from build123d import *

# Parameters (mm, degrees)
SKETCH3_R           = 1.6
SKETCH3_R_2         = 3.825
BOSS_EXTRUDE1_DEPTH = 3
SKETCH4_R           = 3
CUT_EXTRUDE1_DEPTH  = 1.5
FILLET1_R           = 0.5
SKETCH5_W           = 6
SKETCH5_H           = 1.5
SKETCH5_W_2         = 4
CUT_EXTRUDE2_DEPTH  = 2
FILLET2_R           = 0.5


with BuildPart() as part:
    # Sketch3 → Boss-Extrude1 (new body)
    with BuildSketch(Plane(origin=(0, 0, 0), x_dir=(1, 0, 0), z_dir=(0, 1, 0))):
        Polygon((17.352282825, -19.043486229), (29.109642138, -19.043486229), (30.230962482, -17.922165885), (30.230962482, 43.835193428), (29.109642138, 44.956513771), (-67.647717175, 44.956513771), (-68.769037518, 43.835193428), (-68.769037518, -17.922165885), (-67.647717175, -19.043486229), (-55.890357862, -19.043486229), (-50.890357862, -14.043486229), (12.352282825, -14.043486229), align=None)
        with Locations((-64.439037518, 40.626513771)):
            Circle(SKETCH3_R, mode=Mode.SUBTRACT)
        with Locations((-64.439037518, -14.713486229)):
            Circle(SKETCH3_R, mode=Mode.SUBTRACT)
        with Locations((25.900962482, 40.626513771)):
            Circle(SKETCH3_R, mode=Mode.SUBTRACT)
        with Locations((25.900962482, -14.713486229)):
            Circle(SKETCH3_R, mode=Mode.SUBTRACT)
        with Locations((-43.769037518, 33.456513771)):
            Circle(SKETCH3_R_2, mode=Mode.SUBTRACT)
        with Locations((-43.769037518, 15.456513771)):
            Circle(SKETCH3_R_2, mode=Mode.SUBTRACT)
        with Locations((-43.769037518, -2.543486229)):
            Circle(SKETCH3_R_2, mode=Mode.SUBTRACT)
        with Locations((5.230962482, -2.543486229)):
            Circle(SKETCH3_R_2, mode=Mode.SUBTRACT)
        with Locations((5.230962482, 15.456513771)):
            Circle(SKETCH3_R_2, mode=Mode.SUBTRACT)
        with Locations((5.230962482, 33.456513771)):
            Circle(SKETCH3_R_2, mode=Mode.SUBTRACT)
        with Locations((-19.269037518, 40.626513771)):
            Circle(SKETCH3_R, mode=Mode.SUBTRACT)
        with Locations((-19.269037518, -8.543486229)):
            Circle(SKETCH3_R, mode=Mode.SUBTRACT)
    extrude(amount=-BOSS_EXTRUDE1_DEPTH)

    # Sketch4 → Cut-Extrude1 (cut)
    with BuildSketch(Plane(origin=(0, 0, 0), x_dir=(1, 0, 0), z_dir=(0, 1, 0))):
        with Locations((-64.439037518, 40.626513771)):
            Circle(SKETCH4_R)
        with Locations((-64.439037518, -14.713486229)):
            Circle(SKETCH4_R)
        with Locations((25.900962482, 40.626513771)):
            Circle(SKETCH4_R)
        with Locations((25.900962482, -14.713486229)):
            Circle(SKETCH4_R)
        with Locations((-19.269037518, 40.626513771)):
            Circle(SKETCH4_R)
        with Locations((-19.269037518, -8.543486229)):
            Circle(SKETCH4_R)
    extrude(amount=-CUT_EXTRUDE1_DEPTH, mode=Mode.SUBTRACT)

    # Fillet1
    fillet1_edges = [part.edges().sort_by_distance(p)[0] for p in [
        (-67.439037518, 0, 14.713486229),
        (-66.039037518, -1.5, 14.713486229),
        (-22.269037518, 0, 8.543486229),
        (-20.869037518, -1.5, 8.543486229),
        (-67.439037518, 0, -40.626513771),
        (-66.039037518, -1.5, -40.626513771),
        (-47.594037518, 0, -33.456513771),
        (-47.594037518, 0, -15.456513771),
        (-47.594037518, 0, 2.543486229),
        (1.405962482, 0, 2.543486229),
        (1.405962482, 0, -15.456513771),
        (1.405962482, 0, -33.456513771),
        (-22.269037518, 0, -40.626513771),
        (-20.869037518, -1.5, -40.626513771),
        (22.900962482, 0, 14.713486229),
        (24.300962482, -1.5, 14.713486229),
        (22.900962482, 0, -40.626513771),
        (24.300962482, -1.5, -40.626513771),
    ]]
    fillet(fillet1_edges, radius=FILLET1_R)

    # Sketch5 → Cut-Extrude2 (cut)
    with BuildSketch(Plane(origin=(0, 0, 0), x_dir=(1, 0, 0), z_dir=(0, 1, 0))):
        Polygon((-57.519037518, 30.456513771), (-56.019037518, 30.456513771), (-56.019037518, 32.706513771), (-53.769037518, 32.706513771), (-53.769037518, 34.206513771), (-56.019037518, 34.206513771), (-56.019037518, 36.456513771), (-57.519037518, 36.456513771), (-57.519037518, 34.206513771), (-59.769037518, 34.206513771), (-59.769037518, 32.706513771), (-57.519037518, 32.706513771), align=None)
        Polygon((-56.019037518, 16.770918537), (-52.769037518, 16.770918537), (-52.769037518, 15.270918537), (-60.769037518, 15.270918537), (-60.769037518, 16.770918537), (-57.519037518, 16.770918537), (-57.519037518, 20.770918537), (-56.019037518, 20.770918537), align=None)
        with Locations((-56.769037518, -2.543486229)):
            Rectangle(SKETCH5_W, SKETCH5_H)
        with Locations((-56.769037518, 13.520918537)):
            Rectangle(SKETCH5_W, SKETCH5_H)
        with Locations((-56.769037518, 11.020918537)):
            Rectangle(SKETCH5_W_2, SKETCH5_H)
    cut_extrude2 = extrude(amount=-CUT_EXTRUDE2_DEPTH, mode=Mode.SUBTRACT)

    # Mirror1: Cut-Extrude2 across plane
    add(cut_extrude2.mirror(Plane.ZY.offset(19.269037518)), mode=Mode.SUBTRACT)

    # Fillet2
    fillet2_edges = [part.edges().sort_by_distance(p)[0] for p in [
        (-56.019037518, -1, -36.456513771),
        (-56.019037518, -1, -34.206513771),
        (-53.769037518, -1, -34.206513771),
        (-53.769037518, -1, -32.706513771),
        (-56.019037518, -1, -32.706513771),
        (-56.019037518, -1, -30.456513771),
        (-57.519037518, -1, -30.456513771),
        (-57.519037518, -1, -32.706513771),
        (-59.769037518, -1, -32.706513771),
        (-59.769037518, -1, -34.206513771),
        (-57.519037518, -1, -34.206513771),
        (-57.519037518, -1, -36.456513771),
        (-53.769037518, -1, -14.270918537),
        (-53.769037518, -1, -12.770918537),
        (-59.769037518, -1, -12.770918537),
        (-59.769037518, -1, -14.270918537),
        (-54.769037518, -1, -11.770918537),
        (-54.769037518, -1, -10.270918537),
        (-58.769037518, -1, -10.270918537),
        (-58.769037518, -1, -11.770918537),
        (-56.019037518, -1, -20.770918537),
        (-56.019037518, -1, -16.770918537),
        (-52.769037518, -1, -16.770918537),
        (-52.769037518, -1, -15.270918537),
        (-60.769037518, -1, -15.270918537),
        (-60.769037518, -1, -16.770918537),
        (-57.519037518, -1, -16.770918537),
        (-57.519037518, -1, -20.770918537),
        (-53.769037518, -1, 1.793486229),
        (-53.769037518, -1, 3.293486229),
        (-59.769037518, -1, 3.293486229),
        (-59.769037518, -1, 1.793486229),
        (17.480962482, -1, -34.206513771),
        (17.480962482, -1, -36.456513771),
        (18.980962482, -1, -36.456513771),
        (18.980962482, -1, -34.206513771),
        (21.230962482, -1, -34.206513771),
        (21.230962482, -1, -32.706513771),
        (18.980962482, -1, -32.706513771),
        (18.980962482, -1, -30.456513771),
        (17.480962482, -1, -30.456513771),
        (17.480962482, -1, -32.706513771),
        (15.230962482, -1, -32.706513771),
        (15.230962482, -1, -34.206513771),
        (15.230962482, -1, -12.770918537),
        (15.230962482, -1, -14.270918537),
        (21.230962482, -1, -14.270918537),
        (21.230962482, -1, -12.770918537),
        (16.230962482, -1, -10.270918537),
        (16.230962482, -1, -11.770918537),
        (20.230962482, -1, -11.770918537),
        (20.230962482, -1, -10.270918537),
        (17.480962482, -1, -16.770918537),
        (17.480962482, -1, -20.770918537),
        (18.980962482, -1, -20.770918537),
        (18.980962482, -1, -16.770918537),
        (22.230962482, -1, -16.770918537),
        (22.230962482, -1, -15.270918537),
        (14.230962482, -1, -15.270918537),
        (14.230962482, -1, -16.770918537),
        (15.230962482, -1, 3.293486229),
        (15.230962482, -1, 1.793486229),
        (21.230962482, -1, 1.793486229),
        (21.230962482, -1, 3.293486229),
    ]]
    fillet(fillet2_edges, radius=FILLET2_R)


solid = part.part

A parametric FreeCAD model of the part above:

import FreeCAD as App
import Part
import Sketcher
Q = App.Units.Quantity


def edges_at(feature, points):
    """Names of the edges that pass closest to the given points."""
    edges = feature.Shape.Edges
    near = lambda p: min(range(len(edges)), key=lambda i: edges[i].distToShape(Part.Vertex(*p))[0])
    return sorted({f"Edge{near(p) + 1}" for p in points})


def add_polygon(sketch, points):
    """Adds a closed chain of lines whose ends are joined by coincident constraints."""
    first, n = sketch.GeometryCount, len(points)
    for a, b in zip(points, points[1:] + points[:1]):
        sketch.addGeometry(Part.LineSegment(App.Vector(*a, 0), App.Vector(*b, 0)), False)
    for i in range(n):
        sketch.addConstraint(Sketcher.Constraint("Coincident", first + i, 2, first + (i + 1) % n, 1))

doc = App.newDocument("Part")
body = doc.addObject("PartDesign::Body", "Body")

# Sketch on XZ plane
sketch1 = body.newObject("Sketcher::SketchObject", "Sketch")
sketch1.AttachmentSupport = (doc.getObject("XZ_Plane"), [""])
sketch1.MapMode = "FlatFace"
add_polygon(sketch1, [(17.4, 19), (29.1, 19), (30.2, 17.9), (30.2, -43.8), (29.1, -45), (-67.6, -45), (-68.8, -43.8), (-68.8, 17.9), (-67.6, 19), (-55.9, 19), (-50.9, 14), (12.4, 14)])  # lines 0-11
sketch1.addGeometry(Part.Circle(App.Vector(-64.4, 14.7, 0), App.Vector(0, 0, 1), 1.6), False)  # 12
sketch1.addGeometry(Part.Circle(App.Vector(-43.8, 2.5, 0), App.Vector(0, 0, 1), 3.8), False)  # 13
sketch1.addGeometry(Part.Circle(App.Vector(-19.3, 8.5, 0), App.Vector(0, 0, 1), 1.6), False)  # 14
sketch1.addGeometry(Part.Circle(App.Vector(25.9, 14.7, 0), App.Vector(0, 0, 1), 1.6), False)  # 15
sketch1.addGeometry(Part.Circle(App.Vector(5.2, 2.5, 0), App.Vector(0, 0, 1), 3.8), False)  # 16
sketch1.addGeometry(Part.Circle(App.Vector(-43.8, -15.5, 0), App.Vector(0, 0, 1), 3.8), False)  # 17
sketch1.addGeometry(Part.Circle(App.Vector(-43.8, -33.5, 0), App.Vector(0, 0, 1), 3.8), False)  # 18
sketch1.addGeometry(Part.Circle(App.Vector(-64.4, -40.6, 0), App.Vector(0, 0, 1), 1.6), False)  # 19
sketch1.addGeometry(Part.Circle(App.Vector(5.2, -15.5, 0), App.Vector(0, 0, 1), 3.8), False)  # 20
sketch1.addGeometry(Part.Circle(App.Vector(-19.3, -40.6, 0), App.Vector(0, 0, 1), 1.6), False)  # 21
sketch1.addGeometry(Part.Circle(App.Vector(5.2, -33.5, 0), App.Vector(0, 0, 1), 3.8), False)  # 22
sketch1.addGeometry(Part.Circle(App.Vector(25.9, -40.6, 0), App.Vector(0, 0, 1), 1.6), False)  # 23
sketch1.addConstraint(Sketcher.Constraint("Horizontal", 0))
sketch1.addConstraint(Sketcher.Constraint("Vertical", 2))
sketch1.addConstraint(Sketcher.Constraint("Horizontal", 4))
sketch1.addConstraint(Sketcher.Constraint("Vertical", 6))
sketch1.addConstraint(Sketcher.Constraint("Horizontal", 8))
sketch1.addConstraint(Sketcher.Constraint("Horizontal", 10))
sketch1.addConstraint(Sketcher.Constraint("Equal", 12, 14))
sketch1.addConstraint(Sketcher.Constraint("Equal", 14, 15))
sketch1.addConstraint(Sketcher.Constraint("Equal", 13, 16))
sketch1.addConstraint(Sketcher.Constraint("Equal", 16, 17))
sketch1.addConstraint(Sketcher.Constraint("Equal", 17, 18))
sketch1.addConstraint(Sketcher.Constraint("Equal", 15, 19))
sketch1.addConstraint(Sketcher.Constraint("Equal", 18, 20))
sketch1.addConstraint(Sketcher.Constraint("Equal", 19, 21))
sketch1.addConstraint(Sketcher.Constraint("Equal", 20, 22))
sketch1.addConstraint(Sketcher.Constraint("Equal", 21, 23))
sketch1.addConstraint(Sketcher.Constraint("Perpendicular", 1, 3))
sketch1.addConstraint(Sketcher.Constraint("Perpendicular", 3, 5))
sketch1.addConstraint(Sketcher.Constraint("Perpendicular", 5, 7))
sketch1.addConstraint(Sketcher.Constraint("Perpendicular", 7, 9))
sketch1.addConstraint(Sketcher.Constraint("Perpendicular", 9, 11))
sketch1.addConstraint(Sketcher.Constraint("Horizontal", 12, 3, 15, 3))
sketch1.addConstraint(Sketcher.Constraint("Horizontal", 13, 3, 16, 3))
sketch1.addConstraint(Sketcher.Constraint("Horizontal", 17, 3, 20, 3))
sketch1.addConstraint(Sketcher.Constraint("Horizontal", 19, 3, 21, 3))
sketch1.addConstraint(Sketcher.Constraint("Horizontal", 18, 3, 22, 3))
sketch1.addConstraint(Sketcher.Constraint("Horizontal", 21, 3, 23, 3))
sketch1.addConstraint(Sketcher.Constraint("Horizontal", 2, 2, 5, 2))
sketch1.addConstraint(Sketcher.Constraint("Horizontal", 1, 2, 6, 2))
sketch1.addConstraint(Sketcher.Constraint("Horizontal", 0, 2, 7, 2))
sketch1.addConstraint(Sketcher.Constraint("Vertical", 13, 3, 17, 3))
sketch1.addConstraint(Sketcher.Constraint("Vertical", 17, 3, 18, 3))
sketch1.addConstraint(Sketcher.Constraint("Vertical", 12, 3, 19, 3))
sketch1.addConstraint(Sketcher.Constraint("Vertical", 16, 3, 20, 3))
sketch1.addConstraint(Sketcher.Constraint("Vertical", 14, 3, 21, 3))
sketch1.addConstraint(Sketcher.Constraint("Vertical", 20, 3, 22, 3))
sketch1.addConstraint(Sketcher.Constraint("Vertical", 15, 3, 23, 3))
sketch1.addConstraint(Sketcher.Constraint("Vertical", 0, 2, 3, 2))
sketch1.addConstraint(Sketcher.Constraint("Vertical", 4, 2, 7, 2))
sketch1.addConstraint(Sketcher.Constraint("Equal", 0, 8))
sketch1.addConstraint(Sketcher.Constraint("Diameter", 12, Q("3.2 mm")))
sketch1.addConstraint(Sketcher.Constraint("Diameter", 13, Q("7.65 mm")))
sketch1.addConstraint(Sketcher.Constraint("DistanceY", 13, 3, 14, 3, Q("6 mm")))
sketch1.addConstraint(Sketcher.Constraint("DistanceX", 13, 3, 16, 3, Q("49 mm")))
sketch1.addConstraint(Sketcher.Constraint("DistanceY", 17, 3, 13, 3, Q("18 mm")))
sketch1.addConstraint(Sketcher.Constraint("DistanceY", 18, 3, 17, 3, Q("18 mm")))
sketch1.addConstraint(Sketcher.Constraint("DistanceX", 16, 3, 1, 2, Q("25 mm")))
sketch1.addConstraint(Sketcher.Constraint("DistanceX", 5, 2, 18, 3, Q("25 mm")))
sketch1.addConstraint(Sketcher.Constraint("DistanceX", 8, 2, 9, 2, Q("5 mm")))
sketch1.addConstraint(Sketcher.Constraint("DistanceX", 13, 3, 14, 3, Q("24.5 mm")))
sketch1.addConstraint(Sketcher.Constraint("DistanceY", 16, 3, 0, 2, Q("16.5 mm")))
sketch1.addConstraint(Sketcher.Constraint("DistanceY", 3, 2, 22, 3, Q("11.5 mm")))
sketch1.addConstraint(Sketcher.Constraint("DistanceX", 12, 3, 13, 3, Q("20.67 mm")))
sketch1.addConstraint(Sketcher.Constraint("DistanceY", 13, 3, 12, 3, Q("12.17 mm")))
sketch1.addConstraint(Sketcher.Constraint("DistanceX", 14, 3, 15, 3, Q("45.17 mm")))
sketch1.addConstraint(Sketcher.Constraint("DistanceY", 19, 3, 18, 3, Q("7.17 mm")))
sketch1.addConstraint(Sketcher.Constraint("DistanceX", 0, 1, 0, 2, Q("11.757359 mm")))
sketch1.addConstraint(Sketcher.Constraint("DistanceX", 4, 2, 4, 1, Q("96.757359 mm")))
sketch1.addConstraint(Sketcher.Constraint("DistanceX", 12, 3, -1, 1, Q("64.439038 mm")))
sketch1.addConstraint(Sketcher.Constraint("DistanceY", -1, 1, 12, 3, Q("14.713486 mm")))
pad1 = body.newObject("PartDesign::Pad", "Pad")
pad1.Profile = sketch1
pad1.Length = 3

# Sketch on XZ plane
sketch2 = body.newObject("Sketcher::SketchObject", "Sketch001")
sketch2.AttachmentSupport = (doc.getObject("XZ_Plane"), [""])
sketch2.MapMode = "FlatFace"
sketch2.addGeometry(Part.Circle(App.Vector(-64.4, -40.6, 0), App.Vector(0, 0, 1), 3), False)
sketch2.addGeometry(Part.Circle(App.Vector(-64.4, 14.7, 0), App.Vector(0, 0, 1), 3), False)
sketch2.addGeometry(Part.Circle(App.Vector(25.9, -40.6, 0), App.Vector(0, 0, 1), 3), False)
sketch2.addGeometry(Part.Circle(App.Vector(25.9, 14.7, 0), App.Vector(0, 0, 1), 3), False)
sketch2.addGeometry(Part.Circle(App.Vector(-19.3, -40.6, 0), App.Vector(0, 0, 1), 3), False)
sketch2.addGeometry(Part.Circle(App.Vector(-19.3, 8.5, 0), App.Vector(0, 0, 1), 3), False)
sketch2.addConstraint(Sketcher.Constraint("Equal", 0, 1))
sketch2.addConstraint(Sketcher.Constraint("Equal", 1, 2))
sketch2.addConstraint(Sketcher.Constraint("Equal", 2, 3))
sketch2.addConstraint(Sketcher.Constraint("Equal", 3, 4))
sketch2.addConstraint(Sketcher.Constraint("Equal", 4, 5))
sketch2.addConstraint(Sketcher.Constraint("Horizontal", 0, 3, 2, 3))
sketch2.addConstraint(Sketcher.Constraint("Horizontal", 1, 3, 3, 3))
sketch2.addConstraint(Sketcher.Constraint("Horizontal", 2, 3, 4, 3))
sketch2.addConstraint(Sketcher.Constraint("Vertical", 0, 3, 1, 3))
sketch2.addConstraint(Sketcher.Constraint("Vertical", 2, 3, 3, 3))
sketch2.addConstraint(Sketcher.Constraint("Vertical", 4, 3, 5, 3))
sketch2.addConstraint(Sketcher.Constraint("Diameter", 0, Q("6 mm")))
sketch2.addConstraint(Sketcher.Constraint("DistanceY", 0, 3, 1, 3, Q("55.34 mm")))
sketch2.addConstraint(Sketcher.Constraint("DistanceX", 0, 3, 2, 3, Q("90.34 mm")))
sketch2.addConstraint(Sketcher.Constraint("DistanceX", 0, 3, 4, 3, Q("45.17 mm")))
sketch2.addConstraint(Sketcher.Constraint("DistanceY", 5, 3, 1, 3, Q("6.17 mm")))
sketch2.addConstraint(Sketcher.Constraint("DistanceX", 0, 3, -1, 1, Q("64.439038 mm")))
sketch2.addConstraint(Sketcher.Constraint("DistanceY", 0, 3, -1, 1, Q("40.626514 mm")))
pocket1 = body.newObject("PartDesign::Pocket", "Pocket")
pocket1.Profile = sketch2
pocket1.Length = 1.5
pocket1.Reversed = True
doc.recompute()

fillet = body.newObject("PartDesign::Fillet", "Fillet")
fillet.Base = (pocket1, edges_at(pocket1, [
    (-67.439, 0, 14.713),
    (-66.039, -1.5, 14.713),
    (-22.269, 0, 8.543),
    (-20.869, -1.5, 8.543),
    (-67.439, 0, -40.627),
    (-66.039, -1.5, -40.627),
    (-47.594, 0, -33.457),
    (-47.594, 0, -15.457),
    (-47.594, 0, 2.543),
    (1.406, 0, 2.543),
    (1.406, 0, -15.457),
    (1.406, 0, -33.457),
    (-22.269, 0, -40.627),
    (-20.869, -1.5, -40.627),
    (22.901, 0, 14.713),
    (24.301, -1.5, 14.713),
    (22.901, 0, -40.627),
    (24.301, -1.5, -40.627),
]))
fillet.Radius = 0.5

# Sketch on XZ plane
sketch3 = body.newObject("Sketcher::SketchObject", "Sketch002")
sketch3.AttachmentSupport = (doc.getObject("XZ_Plane"), [""])
sketch3.MapMode = "FlatFace"
add_polygon(sketch3, [(-57.5, -30.5), (-56, -30.5), (-56, -32.7), (-53.8, -32.7), (-53.8, -34.2), (-56, -34.2), (-56, -36.5), (-57.5, -36.5), (-57.5, -34.2), (-59.8, -34.2), (-59.8, -32.7), (-57.5, -32.7)])  # lines 0-11
add_polygon(sketch3, [(-52.8, -16.8), (-56, -16.8), (-56, -20.8), (-57.5, -20.8), (-57.5, -16.8), (-60.8, -16.8), (-60.8, -15.3), (-52.8, -15.3)])  # lines 12-19
add_polygon(sketch3, [(-59.8, 1.8), (-59.8, 3.3), (-53.8, 3.3), (-53.8, 1.8)])  # lines 20-23
add_polygon(sketch3, [(-59.8, -14.3), (-59.8, -12.8), (-53.8, -12.8), (-53.8, -14.3)])  # lines 24-27
add_polygon(sketch3, [(-58.8, -11.8), (-58.8, -10.3), (-54.8, -10.3), (-54.8, -11.8)])  # lines 28-31
sketch3.addConstraint(Sketcher.Constraint("Horizontal", 0))
sketch3.addConstraint(Sketcher.Constraint("Vertical", 1))
sketch3.addConstraint(Sketcher.Constraint("Horizontal", 2))
sketch3.addConstraint(Sketcher.Constraint("Vertical", 3))
sketch3.addConstraint(Sketcher.Constraint("Horizontal", 4))
sketch3.addConstraint(Sketcher.Constraint("Vertical", 5))
sketch3.addConstraint(Sketcher.Constraint("Horizontal", 6))
sketch3.addConstraint(Sketcher.Constraint("Vertical", 7))
sketch3.addConstraint(Sketcher.Constraint("Horizontal", 8))
sketch3.addConstraint(Sketcher.Constraint("Vertical", 9))
sketch3.addConstraint(Sketcher.Constraint("Horizontal", 10))
sketch3.addConstraint(Sketcher.Constraint("Vertical", 11))
sketch3.addConstraint(Sketcher.Constraint("Horizontal", 12))
sketch3.addConstraint(Sketcher.Constraint("Vertical", 13))
sketch3.addConstraint(Sketcher.Constraint("Horizontal", 14))
sketch3.addConstraint(Sketcher.Constraint("Vertical", 15))
sketch3.addConstraint(Sketcher.Constraint("Horizontal", 16))
sketch3.addConstraint(Sketcher.Constraint("Vertical", 17))
sketch3.addConstraint(Sketcher.Constraint("Horizontal", 18))
sketch3.addConstraint(Sketcher.Constraint("Vertical", 19))
sketch3.addConstraint(Sketcher.Constraint("Vertical", 20))
sketch3.addConstraint(Sketcher.Constraint("Horizontal", 21))
sketch3.addConstraint(Sketcher.Constraint("Vertical", 22))
sketch3.addConstraint(Sketcher.Constraint("Horizontal", 23))
sketch3.addConstraint(Sketcher.Constraint("Vertical", 24))
sketch3.addConstraint(Sketcher.Constraint("Horizontal", 25))
sketch3.addConstraint(Sketcher.Constraint("Vertical", 26))
sketch3.addConstraint(Sketcher.Constraint("Horizontal", 27))
sketch3.addConstraint(Sketcher.Constraint("Vertical", 28))
sketch3.addConstraint(Sketcher.Constraint("Horizontal", 29))
sketch3.addConstraint(Sketcher.Constraint("Vertical", 30))
sketch3.addConstraint(Sketcher.Constraint("Horizontal", 31))
sketch3.addConstraint(Sketcher.Constraint("Horizontal", 4, 2, 7, 2))
sketch3.addConstraint(Sketcher.Constraint("Horizontal", 2, 2, 9, 2))
sketch3.addConstraint(Sketcher.Constraint("Horizontal", 12, 2, 15, 2))
sketch3.addConstraint(Sketcher.Constraint("Vertical", 1, 2, 4, 2))
sketch3.addConstraint(Sketcher.Constraint("Vertical", 7, 2, 10, 2))
sketch3.addConstraint(Sketcher.Constraint("Vertical", 5, 2, 12, 2))
sketch3.addConstraint(Sketcher.Constraint("Vertical", 11, 2, 14, 2))
sketch3.addConstraint(Sketcher.Constraint("Vertical", 9, 2, 20, 2))
sketch3.addConstraint(Sketcher.Constraint("Vertical", 3, 2, 21, 2))
sketch3.addConstraint(Sketcher.Constraint("Vertical", 23, 2, 24, 2))
sketch3.addConstraint(Sketcher.Constraint("Vertical", 22, 2, 25, 2))
sketch3.addConstraint(Sketcher.Constraint("Equal", 4, 8))
sketch3.addConstraint(Sketcher.Constraint("Equal", 12, 16))
sketch3.addConstraint(Sketcher.Constraint("Equal", 10, 1))
sketch3.addConstraint(Sketcher.Constraint("Equal", 14, 3))
sketch3.addConstraint(Sketcher.Constraint("Equal", 1, 5))
sketch3.addConstraint(Sketcher.Constraint("Equal", 31, 13))
sketch3.addConstraint(Sketcher.Constraint("Equal", 9, 17))
sketch3.addConstraint(Sketcher.Constraint("Equal", 19, 20))
sketch3.addConstraint(Sketcher.Constraint("Equal", 22, 24))
sketch3.addConstraint(Sketcher.Constraint("Equal", 26, 28))
sketch3.addConstraint(Sketcher.Constraint("DistanceX", 18, 1, 18, 2, Q("8 mm")))
sketch3.addConstraint(Sketcher.Constraint("DistanceX", 21, 1, 21, 2, Q("6 mm")))
sketch3.addConstraint(Sketcher.Constraint("DistanceX", 29, 1, 29, 2, Q("4 mm")))
sketch3.addConstraint(Sketcher.Constraint("DistanceX", 0, 1, 0, 2, Q("1.5 mm")))
sketch3.addConstraint(Sketcher.Constraint("DistanceY", 16, 2, 24, 2, Q("4 mm")))
sketch3.addConstraint(Sketcher.Constraint("DistanceX", 24, 2, 28, 2, Q("1 mm")))
sketch3.addConstraint(Sketcher.Constraint("DistanceY", 27, 2, 28, 2, Q("4 mm")))
sketch3.addConstraint(Sketcher.Constraint("DistanceY", 12, 2, -1, 1, Q("16.770919 mm")))
sketch3.addConstraint(Sketcher.Constraint("DistanceX", 0, 2, -1, 1, Q("56.019038 mm")))
sketch3.addConstraint(Sketcher.Constraint("DistanceY", 0, 2, -1, 1, Q("30.456514 mm")))
sketch3.addConstraint(Sketcher.Constraint("DistanceY", -1, 1, 20, 2, Q("3.293486 mm")))
pocket2 = body.newObject("PartDesign::Pocket", "Pocket001")
pocket2.Profile = sketch3
pocket2.Length = 2
pocket2.Reversed = True
doc.recompute()

datumplane = body.newObject("PartDesign::Plane", "DatumPlane")
datumplane.AttachmentSupport = (doc.getObject("YZ_Plane"), [""])
datumplane.MapMode = "FlatFace"
datumplane.AttachmentOffset = App.Placement(App.Vector(0, 0, -19.269038), App.Rotation())
mirrored = body.newObject("PartDesign::Mirrored", "Mirrored")
mirrored.Originals = [pocket2]
mirrored.MirrorPlane = (datumplane, [""])
body.Tip = mirrored
doc.recompute()

fillet2 = body.newObject("PartDesign::Fillet", "Fillet001")
fillet2.Base = (mirrored, edges_at(mirrored, [
    (-56.019, -1, -36.457),
    (-56.019, -1, -34.207),
    (-53.769, -1, -34.207),
    (-53.769, -1, -32.707),
    (-56.019, -1, -32.707),
    (-56.019, -1, -30.457),
    (-57.519, -1, -30.457),
    (-57.519, -1, -32.707),
    (-59.769, -1, -32.707),
    (-59.769, -1, -34.207),
    (-57.519, -1, -34.207),
    (-57.519, -1, -36.457),
    (-53.769, -1, -14.271),
    (-53.769, -1, -12.771),
    (-59.769, -1, -12.771),
    (-59.769, -1, -14.271),
    (-54.769, -1, -11.771),
    (-54.769, -1, -10.271),
    (-58.769, -1, -10.271),
    (-58.769, -1, -11.771),
    (-56.019, -1, -20.771),
    (-56.019, -1, -16.771),
    (-52.769, -1, -16.771),
    (-52.769, -1, -15.271),
    (-60.769, -1, -15.271),
    (-60.769, -1, -16.771),
    (-57.519, -1, -16.771),
    (-57.519, -1, -20.771),
    (-53.769, -1, 1.793),
    (-53.769, -1, 3.293),
    (-59.769, -1, 3.293),
    (-59.769, -1, 1.793),
    (17.481, -1, -34.207),
    (17.481, -1, -36.457),
    (18.981, -1, -36.457),
    (18.981, -1, -34.207),
    (21.231, -1, -34.207),
    (21.231, -1, -32.707),
    (18.981, -1, -32.707),
    (18.981, -1, -30.457),
    (17.481, -1, -30.457),
    (17.481, -1, -32.707),
    (15.231, -1, -32.707),
    (15.231, -1, -34.207),
    (15.231, -1, -12.771),
    (15.231, -1, -14.271),
    (21.231, -1, -14.271),
    (21.231, -1, -12.771),
    (16.231, -1, -10.271),
    (16.231, -1, -11.771),
    (20.231, -1, -11.771),
    (20.231, -1, -10.271),
    (17.481, -1, -16.771),
    (17.481, -1, -20.771),
    (18.981, -1, -20.771),
    (18.981, -1, -16.771),
    (22.231, -1, -16.771),
    (22.231, -1, -15.271),
    (14.231, -1, -15.271),
    (14.231, -1, -16.771),
    (15.231, -1, 3.293),
    (15.231, -1, 1.793),
    (21.231, -1, 1.793),
    (21.231, -1, 3.293),
]))
fillet2.Radius = 0.5

doc.recompute()
